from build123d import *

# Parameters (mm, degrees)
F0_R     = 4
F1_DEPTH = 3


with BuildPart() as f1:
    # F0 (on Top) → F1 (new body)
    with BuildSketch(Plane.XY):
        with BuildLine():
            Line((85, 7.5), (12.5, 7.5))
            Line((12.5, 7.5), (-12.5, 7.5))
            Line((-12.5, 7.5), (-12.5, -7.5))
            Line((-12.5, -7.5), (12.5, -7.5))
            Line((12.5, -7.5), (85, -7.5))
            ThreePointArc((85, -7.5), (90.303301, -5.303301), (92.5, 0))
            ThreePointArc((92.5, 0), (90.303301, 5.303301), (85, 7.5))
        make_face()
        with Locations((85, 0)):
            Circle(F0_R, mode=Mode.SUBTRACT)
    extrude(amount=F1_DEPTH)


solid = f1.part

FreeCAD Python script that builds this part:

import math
import FreeCAD as App
import Part
import Sketcher
from FreeCAD import Vector

doc = App.newDocument("Part")
body = doc.addObject("PartDesign::Body", "Body")

# Sketch on XY plane
sketch1 = body.newObject("Sketcher::SketchObject", "Sketch")
sketch1.AttachmentSupport = (doc.getObject("XY_Plane"), [""])
sketch1.MapMode = "FlatFace"
sketch1.addGeometry(Part.LineSegment(Vector(85, 7.5, 0), Vector(-12.5, 7.5, 0)), False)
sketch1.addGeometry(Part.LineSegment(Vector(-12.5, 7.5, 0), Vector(-12.5, -7.5, 0)), False)
sketch1.addGeometry(Part.LineSegment(Vector(-12.5, -7.5, 0), Vector(85, -7.5, 0)), False)
sketch1.addGeometry(Part.ArcOfCircle(Part.Circle(Vector(85, 0, 0), Vector(0, 0, 1), 7.5), math.radians(-90), math.radians(0)), False)
sketch1.addGeometry(Part.ArcOfCircle(Part.Circle(Vector(85, 0, 0), Vector(0, 0, 1), 7.5), math.radians(0), math.radians(90)), False)
sketch1.addGeometry(Part.Circle(Vector(85, 0, 0), Vector(0, 0, 1), 4), False)
sketch1.addConstraint(Sketcher.Constraint("Coincident", 0, 2, 1, 1))
sketch1.addConstraint(Sketcher.Constraint("Coincident", 1, 2, 2, 1))
sketch1.addConstraint(Sketcher.Constraint("Tangent", 2, 2, 3, 1))
sketch1.addConstraint(Sketcher.Constraint("Tangent", 3, 2, 4, 1))
sketch1.addConstraint(Sketcher.Constraint("Tangent", 4, 2, 0, 1))
sketch1.addConstraint(Sketcher.Constraint("Horizontal", 0))
sketch1.addConstraint(Sketcher.Constraint("Vertical", 1))
sketch1.addConstraint(Sketcher.Constraint("Horizontal", 2))
sketch1.addConstraint(Sketcher.Constraint("Coincident", 5, 3, 3, 3))
sketch1.addConstraint(Sketcher.Constraint("Equal", 3, 4))
sketch1.addConstraint(Sketcher.Constraint("PointOnObject", 3, 3, -1))
sketch1.addConstraint(Sketcher.Constraint("PointOnObject", 3, 2, -1))
sketch1.addConstraint(Sketcher.Constraint("Diameter", 5, 8.0))
sketch1.addConstraint(Sketcher.Constraint("Radius", 3, 7.5))
sketch1.addConstraint(Sketcher.Constraint("DistanceX", 0, 2, 0, 1, 97.5))
sketch1.addConstraint(Sketcher.Constraint("DistanceX", -1, 1, 3, 3, 85.0))
pad1 = body.newObject("PartDesign::Pad", "Pad")
pad1.Profile = sketch1
pad1.Length = 3

doc.recompute()
